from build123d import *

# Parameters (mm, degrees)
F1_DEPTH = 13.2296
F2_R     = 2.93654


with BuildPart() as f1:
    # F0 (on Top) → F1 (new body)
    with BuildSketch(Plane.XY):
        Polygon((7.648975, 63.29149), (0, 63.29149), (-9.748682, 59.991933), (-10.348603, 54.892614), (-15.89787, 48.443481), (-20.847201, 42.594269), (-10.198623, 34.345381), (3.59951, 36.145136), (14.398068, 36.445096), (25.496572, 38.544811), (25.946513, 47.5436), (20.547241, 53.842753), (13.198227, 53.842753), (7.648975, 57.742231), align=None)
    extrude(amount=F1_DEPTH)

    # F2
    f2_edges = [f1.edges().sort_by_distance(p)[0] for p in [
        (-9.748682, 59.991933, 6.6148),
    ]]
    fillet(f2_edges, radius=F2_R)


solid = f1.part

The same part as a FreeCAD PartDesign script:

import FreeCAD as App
import Part
import Sketcher
from FreeCAD import Vector


def edges_at(feature, points):
    """Names of the edges that pass closest to the given points."""
    edges = feature.Shape.Edges
    near = lambda p: min(range(len(edges)), key=lambda i: edges[i].distToShape(Part.Vertex(*p))[0])
    return sorted({f"Edge{near(p) + 1}" for p in points})


def add_polygon(sketch, points):
    """Adds a closed chain of lines whose ends are joined by coincident constraints."""
    first, n = sketch.GeometryCount, len(points)
    for a, b in zip(points, points[1:] + points[:1]):
        sketch.addGeometry(Part.LineSegment(App.Vector(*a, 0), App.Vector(*b, 0)), False)
    for i in range(n):
        sketch.addConstraint(Sketcher.Constraint("Coincident", first + i, 2, first + (i + 1) % n, 1))

doc = App.newDocument("Part")
params = doc.addObject("Spreadsheet::Sheet", "Params")
for row, (alias, value) in enumerate([
    ("pad1_length", "13.2296 mm"),
    ("fillet_radius", "2.93654 mm"),
], start=1):
    params.set(f"A{row}", alias)
    params.set(f"B{row}", "=" + value)
    params.setAlias(f"B{row}", alias)

body = doc.addObject("PartDesign::Body", "Body")

# Sketch on XY plane
sketch1 = body.newObject("Sketcher::SketchObject", "Sketch")
sketch1.AttachmentSupport = (doc.getObject("XY_Plane"), [""])
sketch1.MapMode = "FlatFace"
add_polygon(sketch1, [(8, 63), (0, 63), (-10, 60), (-10, 55), (-16, 48), (-21, 43), (-10, 34), (4, 36), (14, 36), (25, 39), (26, 48), (21, 54), (13, 54), (8, 58)])  # lines 0-13
sketch1.addConstraint(Sketcher.Constraint("Horizontal", 0))
sketch1.addConstraint(Sketcher.Constraint("Horizontal", 11))
sketch1.addConstraint(Sketcher.Constraint("Vertical", 13))
sketch1.addConstraint(Sketcher.Constraint("PointOnObject", 0, 2, -2))
sketch1.addConstraint(Sketcher.Constraint("DistanceY", 13, 1, 13, 2, 5.549259))
sketch1.addConstraint(Sketcher.Constraint("DistanceX", 4, 2, -1, 1, 20.847201))
sketch1.addConstraint(Sketcher.Constraint("DistanceY", -1, 1, 9, 2, 47.5436))
sketch1.addConstraint(Sketcher.Constraint("DistanceY", 5, 2, 3, 2, 14.0981))
sketch1.addConstraint(Sketcher.Constraint("Distance", 4, 7.66219))
sketch1.addConstraint(Sketcher.Constraint("Distance", 5, 13.469832))
sketch1.addConstraint(Sketcher.Constraint("Distance", 8, 11.295379))
sketch1.addConstraint(Sketcher.Constraint("Distance", 9, 9.010031))
sketch1.addConstraint(Sketcher.Constraint("Distance", 12, 6.782339))
sketch1.addConstraint(Sketcher.Constraint("DistanceX", 0, 2, 0, 1, 7.648975))
sketch1.addConstraint(Sketcher.Constraint("DistanceX", 11, 2, 11, 1, 7.349014))
sketch1.addConstraint(Sketcher.Constraint("DistanceY", -1, 1, 0, 2, 63.29149))
sketch1.addConstraint(Sketcher.Constraint("DistanceX", 3, 2, -1, 1, 15.89787))
sketch1.addConstraint(Sketcher.Constraint("DistanceY", -1, 1, 3, 2, 48.443481))
sketch1.addConstraint(Sketcher.Constraint("DistanceX", -1, 1, 6, 2, 3.59951))
sketch1.addConstraint(Sketcher.Constraint("DistanceY", -1, 1, 8, 2, 38.544811))
sketch1.addConstraint(Sketcher.Constraint("DistanceX", -1, 1, 10, 2, 20.547241))
sketch1.addConstraint(Sketcher.Constraint("DistanceX", 2, 2, 1, 2, 0.599921))
sketch1.addConstraint(Sketcher.Constraint("DistanceY", 2, 2, 1, 2, 5.099319))
sketch1.addConstraint(Sketcher.Constraint("DistanceX", 4, 2, 1, 2, 11.098519))
sketch1.addConstraint(Sketcher.Constraint("DistanceY", 5, 2, 1, 2, 25.646552))
sketch1.addConstraint(Sketcher.Constraint("DistanceY", 6, 2, 2, 2, 18.747478))
sketch1.addConstraint(Sketcher.Constraint("DistanceY", 6, 2, 7, 2, 0.29996))
sketch1.addConstraint(Sketcher.Constraint("DistanceX", 5, 2, 7, 2, 24.596691))
pad1 = body.newObject("PartDesign::Pad", "Pad")
pad1.Profile = sketch1
pad1.setExpression("Length", "Params.pad1_length")
doc.recompute()

fillet = body.newObject("PartDesign::Fillet", "Fillet")
fillet.Base = (pad1, edges_at(pad1, [(-9.749, 59.992, 6.615)]))
fillet.setExpression("Radius", "Params.fillet_radius")

doc.recompute()
